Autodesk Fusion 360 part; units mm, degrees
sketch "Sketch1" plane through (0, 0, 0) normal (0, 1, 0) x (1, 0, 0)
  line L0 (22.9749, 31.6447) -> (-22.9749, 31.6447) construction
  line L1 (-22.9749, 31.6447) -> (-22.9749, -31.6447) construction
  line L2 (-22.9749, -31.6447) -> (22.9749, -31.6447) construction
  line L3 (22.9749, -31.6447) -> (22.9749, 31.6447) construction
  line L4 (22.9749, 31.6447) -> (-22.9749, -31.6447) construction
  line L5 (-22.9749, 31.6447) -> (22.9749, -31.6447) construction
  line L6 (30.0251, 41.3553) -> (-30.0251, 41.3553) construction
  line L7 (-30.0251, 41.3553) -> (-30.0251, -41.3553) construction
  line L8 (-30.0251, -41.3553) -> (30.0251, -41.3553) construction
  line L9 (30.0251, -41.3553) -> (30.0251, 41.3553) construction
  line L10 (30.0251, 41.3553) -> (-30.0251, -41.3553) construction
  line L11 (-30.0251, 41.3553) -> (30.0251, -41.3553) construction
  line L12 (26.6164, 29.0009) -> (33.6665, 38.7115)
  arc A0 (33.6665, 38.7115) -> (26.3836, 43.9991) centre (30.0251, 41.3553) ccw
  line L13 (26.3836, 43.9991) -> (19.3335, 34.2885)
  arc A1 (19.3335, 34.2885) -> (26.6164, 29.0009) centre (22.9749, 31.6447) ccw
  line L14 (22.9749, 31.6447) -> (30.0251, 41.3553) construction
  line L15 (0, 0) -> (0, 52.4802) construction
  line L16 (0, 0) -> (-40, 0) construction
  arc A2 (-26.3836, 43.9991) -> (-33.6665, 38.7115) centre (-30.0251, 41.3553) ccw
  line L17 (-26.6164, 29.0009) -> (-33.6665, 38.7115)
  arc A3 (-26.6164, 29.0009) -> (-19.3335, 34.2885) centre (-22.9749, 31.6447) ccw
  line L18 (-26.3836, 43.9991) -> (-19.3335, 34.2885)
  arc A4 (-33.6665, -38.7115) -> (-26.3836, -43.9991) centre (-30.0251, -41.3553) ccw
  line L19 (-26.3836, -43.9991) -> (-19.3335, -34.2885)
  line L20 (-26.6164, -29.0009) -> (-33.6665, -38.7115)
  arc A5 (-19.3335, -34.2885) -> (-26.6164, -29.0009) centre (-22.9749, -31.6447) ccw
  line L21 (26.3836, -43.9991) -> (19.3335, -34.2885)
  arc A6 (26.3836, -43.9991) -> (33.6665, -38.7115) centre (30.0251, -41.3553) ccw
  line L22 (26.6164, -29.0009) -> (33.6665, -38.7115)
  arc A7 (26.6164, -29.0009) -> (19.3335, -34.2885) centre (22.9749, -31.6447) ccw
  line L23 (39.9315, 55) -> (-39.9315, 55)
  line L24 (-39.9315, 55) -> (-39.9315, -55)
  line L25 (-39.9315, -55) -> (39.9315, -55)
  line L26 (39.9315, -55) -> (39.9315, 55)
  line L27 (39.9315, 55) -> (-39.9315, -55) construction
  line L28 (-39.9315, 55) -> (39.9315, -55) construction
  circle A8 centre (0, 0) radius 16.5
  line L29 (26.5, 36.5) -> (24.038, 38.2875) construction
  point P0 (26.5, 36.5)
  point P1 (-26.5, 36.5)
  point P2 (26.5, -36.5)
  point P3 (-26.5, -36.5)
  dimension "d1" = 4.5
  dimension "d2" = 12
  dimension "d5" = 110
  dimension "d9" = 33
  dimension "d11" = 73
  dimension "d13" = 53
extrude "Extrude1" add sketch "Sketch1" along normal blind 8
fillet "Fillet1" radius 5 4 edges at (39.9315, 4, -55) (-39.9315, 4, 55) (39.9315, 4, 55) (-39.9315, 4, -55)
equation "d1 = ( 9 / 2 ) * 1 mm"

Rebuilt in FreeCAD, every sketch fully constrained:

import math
import FreeCAD as App
import Part
import Sketcher
from FreeCAD import Vector
Q = App.Units.Quantity


def edges_at(feature, points):
    """Names of the edges that pass closest to the given points."""
    edges = feature.Shape.Edges
    near = lambda p: min(range(len(edges)), key=lambda i: edges[i].distToShape(Part.Vertex(*p))[0])
    return sorted({f"Edge{near(p) + 1}" for p in points})


def add_polygon(sketch, points):
    """Adds a closed chain of lines whose ends are joined by coincident constraints."""
    first, n = sketch.GeometryCount, len(points)
    for a, b in zip(points, points[1:] + points[:1]):
        sketch.addGeometry(Part.LineSegment(App.Vector(*a, 0), App.Vector(*b, 0)), False)
    for i in range(n):
        sketch.addConstraint(Sketcher.Constraint("Coincident", first + i, 2, first + (i + 1) % n, 1))

doc = App.newDocument("Part")
body = doc.addObject("PartDesign::Body", "Body")

# Sketch on XZ plane
sketch1 = body.newObject("Sketcher::SketchObject", "Sketch")
sketch1.AttachmentSupport = (doc.getObject("XZ_Plane"), [""])
sketch1.MapMode = "FlatFace"
add_polygon(sketch1, [(39.9315, 55), (39.9315, -55), (-39.9315, -55), (-39.9315, 55)])  # lines 0-3
sketch1.addGeometry(Part.ArcOfCircle(Part.Circle(Vector(-30.0251, 41.3553, 0), Vector(0, 0, 1), 4.499941), math.radians(35.980381), math.radians(215.981129)), False)  # 4
sketch1.addGeometry(Part.LineSegment(Vector(-33.6665, 38.7115, 0), Vector(-26.6164, 29.0009, 0)), False)  # 5
sketch1.addGeometry(Part.ArcOfCircle(Part.Circle(Vector(-22.9749, 31.6447, 0), Vector(0, 0, 1), 4.499941), math.radians(-144.019619), math.radians(35.981129)), False)  # 6
sketch1.addGeometry(Part.LineSegment(Vector(-19.3335, 34.2885, 0), Vector(-26.3836, 43.9991, 0)), False)  # 7
sketch1.addGeometry(Part.ArcOfCircle(Part.Circle(Vector(30.0251, 41.3553, 0), Vector(0, 0, 1), 4.500022), math.radians(-35.981129), math.radians(144.019619)), False)  # 8
sketch1.addGeometry(Part.LineSegment(Vector(26.3836, 43.9991, 0), Vector(19.3335, 34.2885, 0)), False)  # 9
sketch1.addGeometry(Part.ArcOfCircle(Part.Circle(Vector(22.9749, 31.6447, 0), Vector(0, 0, 1), 4.500022), math.radians(144.018871), math.radians(324.019619)), False)  # 10
sketch1.addGeometry(Part.LineSegment(Vector(26.6164, 29.0009, 0), Vector(33.6665, 38.7115, 0)), False)  # 11
sketch1.addGeometry(Part.ArcOfCircle(Part.Circle(Vector(-30.0251, -41.3553, 0), Vector(0, 0, 1), 4.500022), math.radians(144.018871), math.radians(324.019619)), False)  # 12
sketch1.addGeometry(Part.LineSegment(Vector(-26.3836, -43.9991, 0), Vector(-19.3335, -34.2885, 0)), False)  # 13
sketch1.addGeometry(Part.ArcOfCircle(Part.Circle(Vector(-22.9749, -31.6447, 0), Vector(0, 0, 1), 4.500022), math.radians(-35.981129), math.radians(144.019619)), False)  # 14
sketch1.addGeometry(Part.LineSegment(Vector(-26.6164, -29.0009, 0), Vector(-33.6665, -38.7115, 0)), False)  # 15
sketch1.addGeometry(Part.Circle(Vector(0, 0, 0), Vector(0, 0, 1), 16.5), False)  # 16
sketch1.addGeometry(Part.LineSegment(Vector(33.6665, -38.7115, 0), Vector(26.6164, -29.0009, 0)), False)  # 17
sketch1.addGeometry(Part.ArcOfCircle(Part.Circle(Vector(22.9749, -31.6447, 0), Vector(0, 0, 1), 4.499941), math.radians(35.980381), math.radians(215.981129)), False)  # 18
sketch1.addGeometry(Part.LineSegment(Vector(19.3335, -34.2885, 0), Vector(26.3836, -43.9991, 0)), False)  # 19
sketch1.addGeometry(Part.ArcOfCircle(Part.Circle(Vector(30.0251, -41.3553, 0), Vector(0, 0, 1), 4.499941), math.radians(-144.019619), math.radians(35.981129)), False)  # 20
sketch1.addConstraint(Sketcher.Constraint("Tangent", 4, 2, 5, 1))
sketch1.addConstraint(Sketcher.Constraint("Tangent", 5, 2, 6, 1))
sketch1.addConstraint(Sketcher.Constraint("Tangent", 6, 2, 7, 1))
sketch1.addConstraint(Sketcher.Constraint("Tangent", 7, 2, 4, 1))
sketch1.addConstraint(Sketcher.Constraint("Tangent", 8, 2, 9, 1))
sketch1.addConstraint(Sketcher.Constraint("Tangent", 9, 2, 10, 1))
sketch1.addConstraint(Sketcher.Constraint("Tangent", 10, 2, 11, 1))
sketch1.addConstraint(Sketcher.Constraint("Tangent", 11, 2, 8, 1))
sketch1.addConstraint(Sketcher.Constraint("Tangent", 12, 2, 13, 1))
sketch1.addConstraint(Sketcher.Constraint("Tangent", 13, 2, 14, 1))
sketch1.addConstraint(Sketcher.Constraint("Tangent", 14, 2, 15, 1))
sketch1.addConstraint(Sketcher.Constraint("Tangent", 15, 2, 12, 1))
sketch1.addConstraint(Sketcher.Constraint("Tangent", 17, 2, 18, 1))
sketch1.addConstraint(Sketcher.Constraint("Tangent", 18, 2, 19, 1))
sketch1.addConstraint(Sketcher.Constraint("Tangent", 19, 2, 20, 1))
sketch1.addConstraint(Sketcher.Constraint("Tangent", 20, 2, 17, 1))
sketch1.addConstraint(Sketcher.Constraint("Vertical", 0))
sketch1.addConstraint(Sketcher.Constraint("Horizontal", 1))
sketch1.addConstraint(Sketcher.Constraint("Vertical", 2))
sketch1.addConstraint(Sketcher.Constraint("Horizontal", 3))
sketch1.addConstraint(Sketcher.Constraint("Coincident", 16, 3, -1, 1))
sketch1.addConstraint(Sketcher.Constraint("Equal", 4, 6))
sketch1.addConstraint(Sketcher.Constraint("Equal", 6, 8))
sketch1.addConstraint(Sketcher.Constraint("Equal", 8, 10))
sketch1.addConstraint(Sketcher.Constraint("Equal", 10, 12))
sketch1.addConstraint(Sketcher.Constraint("Equal", 12, 14))
sketch1.addConstraint(Sketcher.Constraint("Equal", 14, 18))
sketch1.addConstraint(Sketcher.Constraint("Equal", 18, 20))
sketch1.addConstraint(Sketcher.Constraint("Symmetric", 8, 3, 12, 3, -1, 1))
sketch1.addConstraint(Sketcher.Constraint("Symmetric", 10, 3, 14, 3, -1, 1))
sketch1.addConstraint(Sketcher.Constraint("Symmetric", 6, 3, 18, 3, -1, 1))
sketch1.addConstraint(Sketcher.Constraint("Symmetric", 4, 3, 20, 3, -1, 1))
sketch1.addConstraint(Sketcher.Constraint("Symmetric", 0, 2, 2, 2, -1, 1))
sketch1.addConstraint(Sketcher.Constraint("Symmetric", 4, 3, 8, 3, -2))
sketch1.addConstraint(Sketcher.Constraint("Symmetric", 6, 3, 10, 3, -2))
sketch1.addConstraint(Sketcher.Constraint("Diameter", 16, Q("33 mm")))
sketch1.addConstraint(Sketcher.Constraint("Radius", 4, Q("4.5 mm")))
sketch1.addConstraint(Sketcher.Constraint("DistanceY", 0, 2, 0, 1, Q("110 mm")))
sketch1.addConstraint(Sketcher.Constraint("Distance", 5, Q("12 mm")))
sketch1.addConstraint(Sketcher.Constraint("DistanceX", 6, 3, 8, 3, Q("53 mm")))
sketch1.addConstraint(Sketcher.Constraint("DistanceY", 12, 3, 6, 3, Q("73 mm")))
sketch1.addConstraint(Sketcher.Constraint("Angle", 5, Q("-54.0196 deg")))
sketch1.addConstraint(Sketcher.Constraint("DistanceX", 1, 2, 1, 1, Q("79.863 mm")))
pad1 = body.newObject("PartDesign::Pad", "Pad")
pad1.Profile = sketch1
pad1.Length = 8
pad1.Reversed = True
doc.recompute()

fillet = body.newObject("PartDesign::Fillet", "Fillet")
fillet.Base = (pad1, edges_at(pad1, [
    (39.931, 4, -55),
    (-39.931, 4, 55),
    (39.931, 4, 55),
    (-39.931, 4, -55),
]))
fillet.Radius = 5

doc.recompute()
